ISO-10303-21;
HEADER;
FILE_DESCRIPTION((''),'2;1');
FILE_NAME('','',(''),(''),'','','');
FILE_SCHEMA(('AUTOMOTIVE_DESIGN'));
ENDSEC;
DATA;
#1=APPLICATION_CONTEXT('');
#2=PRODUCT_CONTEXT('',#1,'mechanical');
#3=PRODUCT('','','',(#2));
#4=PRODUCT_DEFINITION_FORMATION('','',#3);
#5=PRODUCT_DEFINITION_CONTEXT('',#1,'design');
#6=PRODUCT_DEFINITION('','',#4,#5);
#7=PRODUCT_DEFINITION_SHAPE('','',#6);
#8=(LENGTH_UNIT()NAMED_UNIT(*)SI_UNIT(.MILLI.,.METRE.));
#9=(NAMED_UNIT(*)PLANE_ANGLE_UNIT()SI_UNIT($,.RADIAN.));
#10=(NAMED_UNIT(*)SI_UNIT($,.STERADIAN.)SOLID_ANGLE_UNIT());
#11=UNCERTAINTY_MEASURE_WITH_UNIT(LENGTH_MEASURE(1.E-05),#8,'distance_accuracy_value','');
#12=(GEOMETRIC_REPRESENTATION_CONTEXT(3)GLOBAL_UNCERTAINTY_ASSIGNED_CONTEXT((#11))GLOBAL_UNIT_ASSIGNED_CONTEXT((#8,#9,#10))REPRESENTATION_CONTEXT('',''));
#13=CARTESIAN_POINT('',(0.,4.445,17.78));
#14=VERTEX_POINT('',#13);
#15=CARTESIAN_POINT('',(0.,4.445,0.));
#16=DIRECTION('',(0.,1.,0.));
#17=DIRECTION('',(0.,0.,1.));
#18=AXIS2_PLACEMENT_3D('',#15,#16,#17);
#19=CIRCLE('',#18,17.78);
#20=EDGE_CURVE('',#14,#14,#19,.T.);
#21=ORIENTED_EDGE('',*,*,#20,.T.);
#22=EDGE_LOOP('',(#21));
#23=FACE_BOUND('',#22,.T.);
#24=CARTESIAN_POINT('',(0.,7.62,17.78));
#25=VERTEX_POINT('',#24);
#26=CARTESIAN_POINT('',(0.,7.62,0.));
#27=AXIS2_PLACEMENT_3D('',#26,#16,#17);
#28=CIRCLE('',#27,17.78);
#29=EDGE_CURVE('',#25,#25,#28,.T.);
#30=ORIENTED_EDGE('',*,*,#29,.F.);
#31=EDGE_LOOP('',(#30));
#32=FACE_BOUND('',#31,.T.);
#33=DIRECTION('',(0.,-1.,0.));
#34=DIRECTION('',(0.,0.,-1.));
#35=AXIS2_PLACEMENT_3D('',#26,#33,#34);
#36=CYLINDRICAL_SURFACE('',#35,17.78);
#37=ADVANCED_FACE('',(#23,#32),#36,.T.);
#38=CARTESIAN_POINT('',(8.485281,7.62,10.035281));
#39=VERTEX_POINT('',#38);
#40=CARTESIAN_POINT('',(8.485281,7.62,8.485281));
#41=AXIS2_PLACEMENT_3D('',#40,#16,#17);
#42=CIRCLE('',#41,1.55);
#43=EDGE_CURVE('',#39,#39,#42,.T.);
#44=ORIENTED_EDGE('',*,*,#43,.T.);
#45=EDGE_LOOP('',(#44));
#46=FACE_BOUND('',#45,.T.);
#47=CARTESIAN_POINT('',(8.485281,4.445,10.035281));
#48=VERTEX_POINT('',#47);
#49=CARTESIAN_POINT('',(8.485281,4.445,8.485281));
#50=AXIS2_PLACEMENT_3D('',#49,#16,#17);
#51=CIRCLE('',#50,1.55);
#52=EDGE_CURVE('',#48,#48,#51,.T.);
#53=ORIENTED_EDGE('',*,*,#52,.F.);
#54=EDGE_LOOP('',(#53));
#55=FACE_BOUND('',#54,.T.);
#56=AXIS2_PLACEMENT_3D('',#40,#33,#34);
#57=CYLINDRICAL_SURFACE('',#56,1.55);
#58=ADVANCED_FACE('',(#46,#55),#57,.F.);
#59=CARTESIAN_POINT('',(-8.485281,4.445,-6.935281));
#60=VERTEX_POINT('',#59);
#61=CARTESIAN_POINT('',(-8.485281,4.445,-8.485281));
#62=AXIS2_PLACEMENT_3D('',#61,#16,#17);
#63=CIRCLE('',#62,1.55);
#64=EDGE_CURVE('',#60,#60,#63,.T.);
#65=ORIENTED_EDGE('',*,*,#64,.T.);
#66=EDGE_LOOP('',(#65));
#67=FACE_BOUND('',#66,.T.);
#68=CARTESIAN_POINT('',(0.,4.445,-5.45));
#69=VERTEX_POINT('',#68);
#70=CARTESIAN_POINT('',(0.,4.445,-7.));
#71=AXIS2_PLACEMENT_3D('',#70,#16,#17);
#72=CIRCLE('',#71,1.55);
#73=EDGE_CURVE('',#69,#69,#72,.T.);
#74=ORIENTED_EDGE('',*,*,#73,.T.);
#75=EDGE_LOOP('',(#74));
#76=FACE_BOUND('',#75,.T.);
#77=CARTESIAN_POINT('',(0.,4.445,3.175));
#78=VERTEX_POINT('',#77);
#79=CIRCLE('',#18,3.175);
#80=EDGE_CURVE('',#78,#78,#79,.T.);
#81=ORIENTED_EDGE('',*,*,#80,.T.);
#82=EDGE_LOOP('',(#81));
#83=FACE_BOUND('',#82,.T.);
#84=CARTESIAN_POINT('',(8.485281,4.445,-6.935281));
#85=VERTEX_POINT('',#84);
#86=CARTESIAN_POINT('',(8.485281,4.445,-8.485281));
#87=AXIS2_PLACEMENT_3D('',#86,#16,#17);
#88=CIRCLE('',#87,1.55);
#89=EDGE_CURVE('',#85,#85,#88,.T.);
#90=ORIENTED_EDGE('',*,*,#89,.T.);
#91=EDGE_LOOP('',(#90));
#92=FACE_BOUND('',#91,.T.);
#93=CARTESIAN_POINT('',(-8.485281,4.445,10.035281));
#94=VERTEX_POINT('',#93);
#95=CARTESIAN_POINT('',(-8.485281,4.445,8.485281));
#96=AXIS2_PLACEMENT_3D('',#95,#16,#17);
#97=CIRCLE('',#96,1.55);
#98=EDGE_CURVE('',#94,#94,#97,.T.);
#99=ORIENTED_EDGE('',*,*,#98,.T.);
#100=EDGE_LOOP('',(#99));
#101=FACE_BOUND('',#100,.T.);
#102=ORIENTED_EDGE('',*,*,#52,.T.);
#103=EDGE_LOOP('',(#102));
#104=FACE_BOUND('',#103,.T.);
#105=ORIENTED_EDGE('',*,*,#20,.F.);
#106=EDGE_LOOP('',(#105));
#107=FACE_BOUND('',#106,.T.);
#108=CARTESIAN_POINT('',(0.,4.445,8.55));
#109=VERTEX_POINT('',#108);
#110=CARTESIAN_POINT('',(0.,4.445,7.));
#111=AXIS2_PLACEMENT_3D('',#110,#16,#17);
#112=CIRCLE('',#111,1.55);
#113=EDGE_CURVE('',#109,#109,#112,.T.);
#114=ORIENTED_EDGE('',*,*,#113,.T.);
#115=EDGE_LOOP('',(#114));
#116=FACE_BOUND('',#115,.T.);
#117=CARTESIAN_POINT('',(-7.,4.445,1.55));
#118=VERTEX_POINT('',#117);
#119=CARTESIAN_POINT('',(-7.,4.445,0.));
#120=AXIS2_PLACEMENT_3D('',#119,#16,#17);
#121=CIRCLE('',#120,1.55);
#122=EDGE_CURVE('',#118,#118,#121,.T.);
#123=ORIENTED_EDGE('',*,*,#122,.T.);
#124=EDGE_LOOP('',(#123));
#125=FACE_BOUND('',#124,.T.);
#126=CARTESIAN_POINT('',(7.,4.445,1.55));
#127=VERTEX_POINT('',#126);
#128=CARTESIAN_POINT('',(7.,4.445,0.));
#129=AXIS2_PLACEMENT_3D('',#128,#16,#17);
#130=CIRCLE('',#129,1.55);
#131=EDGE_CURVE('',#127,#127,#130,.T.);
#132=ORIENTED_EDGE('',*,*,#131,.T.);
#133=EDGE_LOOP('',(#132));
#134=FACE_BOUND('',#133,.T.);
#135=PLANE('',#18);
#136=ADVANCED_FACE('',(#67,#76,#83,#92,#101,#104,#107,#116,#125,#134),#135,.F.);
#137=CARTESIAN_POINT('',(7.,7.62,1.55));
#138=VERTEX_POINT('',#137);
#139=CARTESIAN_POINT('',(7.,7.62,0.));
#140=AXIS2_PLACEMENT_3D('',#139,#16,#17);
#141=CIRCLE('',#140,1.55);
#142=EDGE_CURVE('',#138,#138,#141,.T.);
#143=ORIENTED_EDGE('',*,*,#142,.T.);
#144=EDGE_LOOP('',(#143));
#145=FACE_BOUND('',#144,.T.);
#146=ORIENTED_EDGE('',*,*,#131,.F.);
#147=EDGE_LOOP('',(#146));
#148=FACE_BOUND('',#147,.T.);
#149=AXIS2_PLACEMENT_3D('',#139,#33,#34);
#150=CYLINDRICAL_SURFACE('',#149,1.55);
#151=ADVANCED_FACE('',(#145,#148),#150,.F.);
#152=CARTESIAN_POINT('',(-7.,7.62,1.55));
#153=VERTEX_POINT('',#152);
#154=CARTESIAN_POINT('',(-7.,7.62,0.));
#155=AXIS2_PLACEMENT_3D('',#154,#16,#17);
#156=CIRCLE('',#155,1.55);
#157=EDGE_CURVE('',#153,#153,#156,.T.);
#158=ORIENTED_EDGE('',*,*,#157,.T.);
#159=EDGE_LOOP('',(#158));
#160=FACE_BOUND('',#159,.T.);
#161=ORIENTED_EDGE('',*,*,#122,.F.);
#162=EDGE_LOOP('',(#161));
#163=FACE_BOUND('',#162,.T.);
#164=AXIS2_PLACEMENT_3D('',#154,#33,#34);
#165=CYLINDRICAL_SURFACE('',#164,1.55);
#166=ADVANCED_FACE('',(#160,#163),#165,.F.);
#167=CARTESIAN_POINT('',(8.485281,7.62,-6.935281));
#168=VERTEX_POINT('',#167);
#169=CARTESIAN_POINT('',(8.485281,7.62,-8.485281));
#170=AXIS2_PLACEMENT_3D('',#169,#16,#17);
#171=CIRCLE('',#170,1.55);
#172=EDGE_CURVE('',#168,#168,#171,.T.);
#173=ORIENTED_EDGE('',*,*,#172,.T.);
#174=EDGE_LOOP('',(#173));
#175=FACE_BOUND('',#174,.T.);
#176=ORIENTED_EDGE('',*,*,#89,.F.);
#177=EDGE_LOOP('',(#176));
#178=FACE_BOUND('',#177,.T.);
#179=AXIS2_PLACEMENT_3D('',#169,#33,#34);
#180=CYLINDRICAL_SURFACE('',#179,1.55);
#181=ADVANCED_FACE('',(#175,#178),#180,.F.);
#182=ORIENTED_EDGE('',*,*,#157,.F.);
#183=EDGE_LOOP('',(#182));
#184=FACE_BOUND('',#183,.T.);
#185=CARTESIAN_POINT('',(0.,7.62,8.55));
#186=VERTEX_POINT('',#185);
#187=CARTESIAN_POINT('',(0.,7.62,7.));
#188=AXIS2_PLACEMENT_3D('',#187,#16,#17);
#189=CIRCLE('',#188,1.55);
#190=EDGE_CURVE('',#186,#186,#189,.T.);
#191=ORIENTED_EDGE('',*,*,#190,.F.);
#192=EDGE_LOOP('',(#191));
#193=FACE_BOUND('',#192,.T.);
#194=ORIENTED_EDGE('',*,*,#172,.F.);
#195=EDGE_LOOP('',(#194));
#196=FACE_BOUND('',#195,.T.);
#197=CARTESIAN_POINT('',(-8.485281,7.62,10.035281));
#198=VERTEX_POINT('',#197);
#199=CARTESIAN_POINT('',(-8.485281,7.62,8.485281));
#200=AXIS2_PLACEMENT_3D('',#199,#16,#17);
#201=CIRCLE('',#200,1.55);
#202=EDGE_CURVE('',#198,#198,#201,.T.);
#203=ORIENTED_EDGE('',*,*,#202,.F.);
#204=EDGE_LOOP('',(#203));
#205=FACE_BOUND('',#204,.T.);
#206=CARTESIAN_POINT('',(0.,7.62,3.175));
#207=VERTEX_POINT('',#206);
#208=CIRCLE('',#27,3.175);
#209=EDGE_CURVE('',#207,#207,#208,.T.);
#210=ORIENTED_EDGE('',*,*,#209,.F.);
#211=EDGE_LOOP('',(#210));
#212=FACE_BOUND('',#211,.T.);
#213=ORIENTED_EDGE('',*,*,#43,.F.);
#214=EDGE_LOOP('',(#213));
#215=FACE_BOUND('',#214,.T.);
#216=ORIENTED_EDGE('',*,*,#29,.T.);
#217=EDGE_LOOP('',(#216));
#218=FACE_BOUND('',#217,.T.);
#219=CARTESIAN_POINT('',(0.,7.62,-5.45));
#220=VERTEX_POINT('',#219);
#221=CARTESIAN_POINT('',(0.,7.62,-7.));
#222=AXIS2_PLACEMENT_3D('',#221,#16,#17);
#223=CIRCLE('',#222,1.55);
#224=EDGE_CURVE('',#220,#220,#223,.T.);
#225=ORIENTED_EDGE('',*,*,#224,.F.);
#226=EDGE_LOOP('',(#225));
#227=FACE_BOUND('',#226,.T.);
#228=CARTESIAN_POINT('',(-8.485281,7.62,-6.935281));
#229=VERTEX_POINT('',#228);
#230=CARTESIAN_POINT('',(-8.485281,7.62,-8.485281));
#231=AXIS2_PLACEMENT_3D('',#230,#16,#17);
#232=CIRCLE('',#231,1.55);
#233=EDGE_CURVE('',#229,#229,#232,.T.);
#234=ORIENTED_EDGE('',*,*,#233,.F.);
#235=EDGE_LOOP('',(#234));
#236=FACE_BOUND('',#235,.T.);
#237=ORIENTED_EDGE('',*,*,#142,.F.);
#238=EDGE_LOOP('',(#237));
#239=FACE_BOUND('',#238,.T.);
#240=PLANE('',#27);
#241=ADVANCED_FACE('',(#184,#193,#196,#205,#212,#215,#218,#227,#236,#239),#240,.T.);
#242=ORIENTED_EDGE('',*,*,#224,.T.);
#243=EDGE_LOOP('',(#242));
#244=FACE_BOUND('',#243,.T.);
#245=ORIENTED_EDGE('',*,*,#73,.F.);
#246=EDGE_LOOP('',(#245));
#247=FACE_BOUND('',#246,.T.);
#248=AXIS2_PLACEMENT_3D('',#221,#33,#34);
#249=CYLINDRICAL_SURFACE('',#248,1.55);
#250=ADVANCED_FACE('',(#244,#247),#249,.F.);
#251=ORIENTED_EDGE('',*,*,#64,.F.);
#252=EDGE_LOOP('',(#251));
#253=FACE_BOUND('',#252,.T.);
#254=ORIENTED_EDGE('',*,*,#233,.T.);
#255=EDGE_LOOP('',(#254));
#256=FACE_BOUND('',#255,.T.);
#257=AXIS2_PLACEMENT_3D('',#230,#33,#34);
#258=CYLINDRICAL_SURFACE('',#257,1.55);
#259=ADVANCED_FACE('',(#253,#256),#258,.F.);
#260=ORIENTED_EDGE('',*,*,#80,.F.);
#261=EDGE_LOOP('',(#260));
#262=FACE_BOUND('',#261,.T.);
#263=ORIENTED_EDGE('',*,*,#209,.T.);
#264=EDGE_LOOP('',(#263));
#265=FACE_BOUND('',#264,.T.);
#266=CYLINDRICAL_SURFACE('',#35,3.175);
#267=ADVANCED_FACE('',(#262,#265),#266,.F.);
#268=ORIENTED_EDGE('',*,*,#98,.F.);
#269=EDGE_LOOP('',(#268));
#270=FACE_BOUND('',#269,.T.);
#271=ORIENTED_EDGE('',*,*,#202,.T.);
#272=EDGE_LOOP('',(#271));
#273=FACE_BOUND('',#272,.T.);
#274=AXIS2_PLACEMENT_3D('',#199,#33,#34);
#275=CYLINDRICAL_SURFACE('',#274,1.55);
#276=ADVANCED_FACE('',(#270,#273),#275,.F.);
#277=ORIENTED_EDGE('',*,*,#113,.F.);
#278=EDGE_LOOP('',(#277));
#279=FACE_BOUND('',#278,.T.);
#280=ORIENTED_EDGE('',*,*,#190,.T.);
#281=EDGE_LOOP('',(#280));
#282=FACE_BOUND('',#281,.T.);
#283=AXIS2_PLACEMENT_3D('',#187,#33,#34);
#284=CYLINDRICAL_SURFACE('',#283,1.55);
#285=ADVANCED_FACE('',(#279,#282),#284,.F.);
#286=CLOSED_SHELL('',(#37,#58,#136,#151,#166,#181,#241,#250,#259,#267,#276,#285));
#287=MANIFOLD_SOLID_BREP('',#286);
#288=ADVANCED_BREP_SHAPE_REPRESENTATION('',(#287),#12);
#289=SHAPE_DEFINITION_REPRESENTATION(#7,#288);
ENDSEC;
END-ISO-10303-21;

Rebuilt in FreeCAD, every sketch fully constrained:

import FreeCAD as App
import Part
import Sketcher

V = App.Vector
Q = App.Units.Quantity


def add_polygon(sketch, points):
    """Adds a closed chain of lines whose ends are joined by coincident constraints."""
    first, n = sketch.GeometryCount, len(points)
    for a, b in zip(points, points[1:] + points[:1]):
        sketch.addGeometry(Part.LineSegment(App.Vector(*a, 0), App.Vector(*b, 0)), False)
    for i in range(n):
        sketch.addConstraint(Sketcher.Constraint("Coincident", first + i, 2, first + (i + 1) % n, 1))

doc = App.newDocument("Part")
params = doc.addObject("Spreadsheet::Sheet", "Params")
for row, (alias, value) in enumerate([
    ("sketch1_height", "0.1 in"),
    ("sketch1_width", "0.21 in"),
    ("sketch1_width2", "0.07 in"),
    ("sketch1_width3", "0.335 in"),
    ("sketch1_height2", "0.075 in"),
    ("revolution_angle", "360 deg"),
    ("sketch2_diameter", "0.1 in"),
    ("sketch3_diameter", "1.4 in"),
    ("sketch3_diameter2", "0.25 in"),
    ("pad1_length", "0.125 in"),
], start=1):
    params.set(f"A{row}", alias)
    params.set(f"B{row}", "=" + value)
    params.setAlias(f"B{row}", alias)

body = doc.addObject("PartDesign::Body", "Body")

sketch1 = doc.addObject("Sketcher::SketchObject", "Sketch")
body.addObject(sketch1)
sketch1.AttachmentSupport = (doc.XY_Plane, [""])
sketch1.MapMode = "FlatFace"
add_polygon(sketch1, [(4.6, 0), (4.6, 1.9), (9.9, 1.9), (9.9, 4.4), (1.4, 4.4), (1.4, 2.5), (3.2, 2.5), (3.2, 0)])
sketch1.addConstraint(Sketcher.Constraint("Vertical", 0))
sketch1.addConstraint(Sketcher.Constraint("Horizontal", 1))
sketch1.addConstraint(Sketcher.Constraint("Vertical", 2))
sketch1.addConstraint(Sketcher.Constraint("Horizontal", 3))
sketch1.addConstraint(Sketcher.Constraint("Vertical", 4))
sketch1.addConstraint(Sketcher.Constraint("Horizontal", 5))
sketch1.addConstraint(Sketcher.Constraint("Vertical", 6))
sketch1.addConstraint(Sketcher.Constraint("Horizontal", 7))
sketch1.addConstraint(Sketcher.Constraint("PointOnObject", 6, 2, -1))
sketch1.addConstraint(Sketcher.Constraint("Equal", 0, 4))
sketch1.addConstraint(Sketcher.Constraint("DistanceY", 2, 1, 2, 2, Q("0.1 in")))
sketch1.addConstraint(Sketcher.Constraint("DistanceX", 1, 1, 1, 2, Q("0.21 in")))
sketch1.addConstraint(Sketcher.Constraint("DistanceX", 5, 1, 5, 2, Q("0.07 in")))
sketch1.addConstraint(Sketcher.Constraint("DistanceX", 3, 2, 3, 1, Q("0.335 in")))
sketch1.addConstraint(Sketcher.Constraint("DistanceY", 0, 1, 0, 2, Q("0.075 in")))
sketch1.addConstraint(Sketcher.Constraint("DistanceX", -1, 1, 0, 2, Q("0.18 in")))
sketch1.setExpression("Constraints[18]", "Params.sketch1_height")
sketch1.setExpression("Constraints[19]", "Params.sketch1_width")
sketch1.setExpression("Constraints[20]", "Params.sketch1_width2")
sketch1.setExpression("Constraints[21]", "Params.sketch1_width3")
sketch1.setExpression("Constraints[22]", "Params.sketch1_height2")
revolution = doc.addObject("PartDesign::Revolution", "Revolution")
body.addObject(revolution)
revolution.Profile = sketch1
revolution.ReferenceAxis = (sketch1, ["V_Axis"])
revolution.setExpression("Angle", "Params.revolution_angle")

sketch2 = doc.addObject("Sketcher::SketchObject", "Sketch001")
body.addObject(sketch2)
sketch2.AttachmentSupport = (doc.XZ_Plane, [""])
sketch2.MapMode = "FlatFace"
sketch2.AttachmentOffset = App.Placement(V(0, 0, -0.175 * 25.4), App.Rotation())
sketch2.addGeometry(Part.Circle(V(0, -7, 0), V(0, 0, 1), 1.3), False)
sketch2.addGeometry(Part.Circle(V(7, 0, 0), V(0, 0, 1), 1.3), False)
sketch2.addGeometry(Part.Circle(V(0, 7, 0), V(0, 0, 1), 1.3), False)
sketch2.addGeometry(Part.Circle(V(-7, 0, 0), V(0, 0, 1), 1.3), False)
sketch2.addConstraint(Sketcher.Constraint("Equal", 0, 1))
sketch2.addConstraint(Sketcher.Constraint("Equal", 1, 2))
sketch2.addConstraint(Sketcher.Constraint("Equal", 2, 3))
sketch2.addConstraint(Sketcher.Constraint("Symmetric", 0, 3, 2, 3, -1, 1))
sketch2.addConstraint(Sketcher.Constraint("Symmetric", 1, 3, 3, 3, -1, 1))
sketch2.addConstraint(Sketcher.Constraint("PointOnObject", 0, 3, -2))
sketch2.addConstraint(Sketcher.Constraint("PointOnObject", 1, 3, -1))
sketch2.addConstraint(Sketcher.Constraint("Diameter", 0, Q("0.1 in")))
sketch2.addConstraint(Sketcher.Constraint("DistanceY", 0, 3, -1, 1, Q("7 mm")))
sketch2.addConstraint(Sketcher.Constraint("DistanceX", -1, 1, 1, 3, Q("7 mm")))
sketch2.setExpression("Constraints[7]", "Params.sketch2_diameter")
pocket1 = doc.addObject("PartDesign::Pocket", "Pocket")
body.addObject(pocket1)
pocket1.Profile = sketch2
pocket1.Type = "ThroughAll"
pocket1.Reversed = True
body2 = doc.addObject("PartDesign::Body", "Body001")

sketch3 = doc.addObject("Sketcher::SketchObject", "Sketch002")
body2.addObject(sketch3)
sketch3.AttachmentSupport = (doc.getObject("XZ_Plane001"), [""])
sketch3.MapMode = "FlatFace"
sketch3.AttachmentOffset = App.Placement(V(0, 0, -0.175 * 25.4), App.Rotation())
sketch3.addGeometry(Part.Circle(V(0, 0, 0), V(0, 0, 1), 17.8), False)
sketch3.addGeometry(Part.Circle(V(-8.5, -8.5, 0), V(0, 0, 1), 1.6), False)
sketch3.addGeometry(Part.Circle(V(0, -7, 0), V(0, 0, 1), 1.6), False)
sketch3.addGeometry(Part.Circle(V(-7, 0, 0), V(0, 0, 1), 1.6), False)
sketch3.addGeometry(Part.Circle(V(-8.5, 8.5, 0), V(0, 0, 1), 1.6), False)
sketch3.addGeometry(Part.Circle(V(8.5, -8.5, 0), V(0, 0, 1), 1.6), False)
sketch3.addGeometry(Part.Circle(V(0, 0, 0), V(0, 0, 1), 3.2), False)
sketch3.addGeometry(Part.Circle(V(0, 7, 0), V(0, 0, 1), 1.6), False)
sketch3.addGeometry(Part.Circle(V(7, 0, 0), V(0, 0, 1), 1.6), False)
sketch3.addGeometry(Part.Circle(V(8.5, 8.5, 0), V(0, 0, 1), 1.6), False)
sketch3.addConstraint(Sketcher.Constraint("Coincident", 0, 3, -1, 1))
sketch3.addConstraint(Sketcher.Constraint("Coincident", 6, 3, -1, 1))
sketch3.addConstraint(Sketcher.Constraint("Equal", 1, 2))
sketch3.addConstraint(Sketcher.Constraint("Equal", 2, 3))
sketch3.addConstraint(Sketcher.Constraint("Equal", 3, 4))
sketch3.addConstraint(Sketcher.Constraint("Equal", 4, 5))
sketch3.addConstraint(Sketcher.Constraint("Equal", 5, 7))
sketch3.addConstraint(Sketcher.Constraint("Equal", 7, 8))
sketch3.addConstraint(Sketcher.Constraint("Equal", 8, 9))
sketch3.addConstraint(Sketcher.Constraint("Symmetric", 4, 3, 5, 3, -1, 1))
sketch3.addConstraint(Sketcher.Constraint("Symmetric", 2, 3, 7, 3, -1, 1))
sketch3.addConstraint(Sketcher.Constraint("Symmetric", 3, 3, 8, 3, -1, 1))
sketch3.addConstraint(Sketcher.Constraint("Symmetric", 1, 3, 9, 3, -1, 1))
sketch3.addConstraint(Sketcher.Constraint("Symmetric", 1, 3, 5, 3, -2))
sketch3.addConstraint(Sketcher.Constraint("PointOnObject", 2, 3, -2))
sketch3.addConstraint(Sketcher.Constraint("PointOnObject", 3, 3, -1))
sketch3.addConstraint(Sketcher.Constraint("Diameter", 0, Q("1.4 in")))
sketch3.addConstraint(Sketcher.Constraint("Diameter", 6, Q("0.25 in")))
sketch3.addConstraint(Sketcher.Constraint("Diameter", 1, Q("3.1 mm")))
sketch3.addConstraint(Sketcher.Constraint("DistanceY", 2, 3, -1, 1, Q("7 mm")))
sketch3.addConstraint(Sketcher.Constraint("DistanceX", 3, 3, -1, 1, Q("7 mm")))
sketch3.addConstraint(Sketcher.Constraint("DistanceX", 1, 3, -1, 1, Q("8.485281 mm")))
sketch3.addConstraint(Sketcher.Constraint("DistanceY", 1, 3, -1, 1, Q("8.485281 mm")))
sketch3.setExpression("Constraints[16]", "Params.sketch3_diameter")
sketch3.setExpression("Constraints[17]", "Params.sketch3_diameter2")
pad1 = doc.addObject("PartDesign::Pad", "Pad")
body2.addObject(pad1)
pad1.Profile = sketch3
pad1.setExpression("Length", "Params.pad1_length")
pad1.Reversed = True
body.Visibility = False

doc.recompute()
